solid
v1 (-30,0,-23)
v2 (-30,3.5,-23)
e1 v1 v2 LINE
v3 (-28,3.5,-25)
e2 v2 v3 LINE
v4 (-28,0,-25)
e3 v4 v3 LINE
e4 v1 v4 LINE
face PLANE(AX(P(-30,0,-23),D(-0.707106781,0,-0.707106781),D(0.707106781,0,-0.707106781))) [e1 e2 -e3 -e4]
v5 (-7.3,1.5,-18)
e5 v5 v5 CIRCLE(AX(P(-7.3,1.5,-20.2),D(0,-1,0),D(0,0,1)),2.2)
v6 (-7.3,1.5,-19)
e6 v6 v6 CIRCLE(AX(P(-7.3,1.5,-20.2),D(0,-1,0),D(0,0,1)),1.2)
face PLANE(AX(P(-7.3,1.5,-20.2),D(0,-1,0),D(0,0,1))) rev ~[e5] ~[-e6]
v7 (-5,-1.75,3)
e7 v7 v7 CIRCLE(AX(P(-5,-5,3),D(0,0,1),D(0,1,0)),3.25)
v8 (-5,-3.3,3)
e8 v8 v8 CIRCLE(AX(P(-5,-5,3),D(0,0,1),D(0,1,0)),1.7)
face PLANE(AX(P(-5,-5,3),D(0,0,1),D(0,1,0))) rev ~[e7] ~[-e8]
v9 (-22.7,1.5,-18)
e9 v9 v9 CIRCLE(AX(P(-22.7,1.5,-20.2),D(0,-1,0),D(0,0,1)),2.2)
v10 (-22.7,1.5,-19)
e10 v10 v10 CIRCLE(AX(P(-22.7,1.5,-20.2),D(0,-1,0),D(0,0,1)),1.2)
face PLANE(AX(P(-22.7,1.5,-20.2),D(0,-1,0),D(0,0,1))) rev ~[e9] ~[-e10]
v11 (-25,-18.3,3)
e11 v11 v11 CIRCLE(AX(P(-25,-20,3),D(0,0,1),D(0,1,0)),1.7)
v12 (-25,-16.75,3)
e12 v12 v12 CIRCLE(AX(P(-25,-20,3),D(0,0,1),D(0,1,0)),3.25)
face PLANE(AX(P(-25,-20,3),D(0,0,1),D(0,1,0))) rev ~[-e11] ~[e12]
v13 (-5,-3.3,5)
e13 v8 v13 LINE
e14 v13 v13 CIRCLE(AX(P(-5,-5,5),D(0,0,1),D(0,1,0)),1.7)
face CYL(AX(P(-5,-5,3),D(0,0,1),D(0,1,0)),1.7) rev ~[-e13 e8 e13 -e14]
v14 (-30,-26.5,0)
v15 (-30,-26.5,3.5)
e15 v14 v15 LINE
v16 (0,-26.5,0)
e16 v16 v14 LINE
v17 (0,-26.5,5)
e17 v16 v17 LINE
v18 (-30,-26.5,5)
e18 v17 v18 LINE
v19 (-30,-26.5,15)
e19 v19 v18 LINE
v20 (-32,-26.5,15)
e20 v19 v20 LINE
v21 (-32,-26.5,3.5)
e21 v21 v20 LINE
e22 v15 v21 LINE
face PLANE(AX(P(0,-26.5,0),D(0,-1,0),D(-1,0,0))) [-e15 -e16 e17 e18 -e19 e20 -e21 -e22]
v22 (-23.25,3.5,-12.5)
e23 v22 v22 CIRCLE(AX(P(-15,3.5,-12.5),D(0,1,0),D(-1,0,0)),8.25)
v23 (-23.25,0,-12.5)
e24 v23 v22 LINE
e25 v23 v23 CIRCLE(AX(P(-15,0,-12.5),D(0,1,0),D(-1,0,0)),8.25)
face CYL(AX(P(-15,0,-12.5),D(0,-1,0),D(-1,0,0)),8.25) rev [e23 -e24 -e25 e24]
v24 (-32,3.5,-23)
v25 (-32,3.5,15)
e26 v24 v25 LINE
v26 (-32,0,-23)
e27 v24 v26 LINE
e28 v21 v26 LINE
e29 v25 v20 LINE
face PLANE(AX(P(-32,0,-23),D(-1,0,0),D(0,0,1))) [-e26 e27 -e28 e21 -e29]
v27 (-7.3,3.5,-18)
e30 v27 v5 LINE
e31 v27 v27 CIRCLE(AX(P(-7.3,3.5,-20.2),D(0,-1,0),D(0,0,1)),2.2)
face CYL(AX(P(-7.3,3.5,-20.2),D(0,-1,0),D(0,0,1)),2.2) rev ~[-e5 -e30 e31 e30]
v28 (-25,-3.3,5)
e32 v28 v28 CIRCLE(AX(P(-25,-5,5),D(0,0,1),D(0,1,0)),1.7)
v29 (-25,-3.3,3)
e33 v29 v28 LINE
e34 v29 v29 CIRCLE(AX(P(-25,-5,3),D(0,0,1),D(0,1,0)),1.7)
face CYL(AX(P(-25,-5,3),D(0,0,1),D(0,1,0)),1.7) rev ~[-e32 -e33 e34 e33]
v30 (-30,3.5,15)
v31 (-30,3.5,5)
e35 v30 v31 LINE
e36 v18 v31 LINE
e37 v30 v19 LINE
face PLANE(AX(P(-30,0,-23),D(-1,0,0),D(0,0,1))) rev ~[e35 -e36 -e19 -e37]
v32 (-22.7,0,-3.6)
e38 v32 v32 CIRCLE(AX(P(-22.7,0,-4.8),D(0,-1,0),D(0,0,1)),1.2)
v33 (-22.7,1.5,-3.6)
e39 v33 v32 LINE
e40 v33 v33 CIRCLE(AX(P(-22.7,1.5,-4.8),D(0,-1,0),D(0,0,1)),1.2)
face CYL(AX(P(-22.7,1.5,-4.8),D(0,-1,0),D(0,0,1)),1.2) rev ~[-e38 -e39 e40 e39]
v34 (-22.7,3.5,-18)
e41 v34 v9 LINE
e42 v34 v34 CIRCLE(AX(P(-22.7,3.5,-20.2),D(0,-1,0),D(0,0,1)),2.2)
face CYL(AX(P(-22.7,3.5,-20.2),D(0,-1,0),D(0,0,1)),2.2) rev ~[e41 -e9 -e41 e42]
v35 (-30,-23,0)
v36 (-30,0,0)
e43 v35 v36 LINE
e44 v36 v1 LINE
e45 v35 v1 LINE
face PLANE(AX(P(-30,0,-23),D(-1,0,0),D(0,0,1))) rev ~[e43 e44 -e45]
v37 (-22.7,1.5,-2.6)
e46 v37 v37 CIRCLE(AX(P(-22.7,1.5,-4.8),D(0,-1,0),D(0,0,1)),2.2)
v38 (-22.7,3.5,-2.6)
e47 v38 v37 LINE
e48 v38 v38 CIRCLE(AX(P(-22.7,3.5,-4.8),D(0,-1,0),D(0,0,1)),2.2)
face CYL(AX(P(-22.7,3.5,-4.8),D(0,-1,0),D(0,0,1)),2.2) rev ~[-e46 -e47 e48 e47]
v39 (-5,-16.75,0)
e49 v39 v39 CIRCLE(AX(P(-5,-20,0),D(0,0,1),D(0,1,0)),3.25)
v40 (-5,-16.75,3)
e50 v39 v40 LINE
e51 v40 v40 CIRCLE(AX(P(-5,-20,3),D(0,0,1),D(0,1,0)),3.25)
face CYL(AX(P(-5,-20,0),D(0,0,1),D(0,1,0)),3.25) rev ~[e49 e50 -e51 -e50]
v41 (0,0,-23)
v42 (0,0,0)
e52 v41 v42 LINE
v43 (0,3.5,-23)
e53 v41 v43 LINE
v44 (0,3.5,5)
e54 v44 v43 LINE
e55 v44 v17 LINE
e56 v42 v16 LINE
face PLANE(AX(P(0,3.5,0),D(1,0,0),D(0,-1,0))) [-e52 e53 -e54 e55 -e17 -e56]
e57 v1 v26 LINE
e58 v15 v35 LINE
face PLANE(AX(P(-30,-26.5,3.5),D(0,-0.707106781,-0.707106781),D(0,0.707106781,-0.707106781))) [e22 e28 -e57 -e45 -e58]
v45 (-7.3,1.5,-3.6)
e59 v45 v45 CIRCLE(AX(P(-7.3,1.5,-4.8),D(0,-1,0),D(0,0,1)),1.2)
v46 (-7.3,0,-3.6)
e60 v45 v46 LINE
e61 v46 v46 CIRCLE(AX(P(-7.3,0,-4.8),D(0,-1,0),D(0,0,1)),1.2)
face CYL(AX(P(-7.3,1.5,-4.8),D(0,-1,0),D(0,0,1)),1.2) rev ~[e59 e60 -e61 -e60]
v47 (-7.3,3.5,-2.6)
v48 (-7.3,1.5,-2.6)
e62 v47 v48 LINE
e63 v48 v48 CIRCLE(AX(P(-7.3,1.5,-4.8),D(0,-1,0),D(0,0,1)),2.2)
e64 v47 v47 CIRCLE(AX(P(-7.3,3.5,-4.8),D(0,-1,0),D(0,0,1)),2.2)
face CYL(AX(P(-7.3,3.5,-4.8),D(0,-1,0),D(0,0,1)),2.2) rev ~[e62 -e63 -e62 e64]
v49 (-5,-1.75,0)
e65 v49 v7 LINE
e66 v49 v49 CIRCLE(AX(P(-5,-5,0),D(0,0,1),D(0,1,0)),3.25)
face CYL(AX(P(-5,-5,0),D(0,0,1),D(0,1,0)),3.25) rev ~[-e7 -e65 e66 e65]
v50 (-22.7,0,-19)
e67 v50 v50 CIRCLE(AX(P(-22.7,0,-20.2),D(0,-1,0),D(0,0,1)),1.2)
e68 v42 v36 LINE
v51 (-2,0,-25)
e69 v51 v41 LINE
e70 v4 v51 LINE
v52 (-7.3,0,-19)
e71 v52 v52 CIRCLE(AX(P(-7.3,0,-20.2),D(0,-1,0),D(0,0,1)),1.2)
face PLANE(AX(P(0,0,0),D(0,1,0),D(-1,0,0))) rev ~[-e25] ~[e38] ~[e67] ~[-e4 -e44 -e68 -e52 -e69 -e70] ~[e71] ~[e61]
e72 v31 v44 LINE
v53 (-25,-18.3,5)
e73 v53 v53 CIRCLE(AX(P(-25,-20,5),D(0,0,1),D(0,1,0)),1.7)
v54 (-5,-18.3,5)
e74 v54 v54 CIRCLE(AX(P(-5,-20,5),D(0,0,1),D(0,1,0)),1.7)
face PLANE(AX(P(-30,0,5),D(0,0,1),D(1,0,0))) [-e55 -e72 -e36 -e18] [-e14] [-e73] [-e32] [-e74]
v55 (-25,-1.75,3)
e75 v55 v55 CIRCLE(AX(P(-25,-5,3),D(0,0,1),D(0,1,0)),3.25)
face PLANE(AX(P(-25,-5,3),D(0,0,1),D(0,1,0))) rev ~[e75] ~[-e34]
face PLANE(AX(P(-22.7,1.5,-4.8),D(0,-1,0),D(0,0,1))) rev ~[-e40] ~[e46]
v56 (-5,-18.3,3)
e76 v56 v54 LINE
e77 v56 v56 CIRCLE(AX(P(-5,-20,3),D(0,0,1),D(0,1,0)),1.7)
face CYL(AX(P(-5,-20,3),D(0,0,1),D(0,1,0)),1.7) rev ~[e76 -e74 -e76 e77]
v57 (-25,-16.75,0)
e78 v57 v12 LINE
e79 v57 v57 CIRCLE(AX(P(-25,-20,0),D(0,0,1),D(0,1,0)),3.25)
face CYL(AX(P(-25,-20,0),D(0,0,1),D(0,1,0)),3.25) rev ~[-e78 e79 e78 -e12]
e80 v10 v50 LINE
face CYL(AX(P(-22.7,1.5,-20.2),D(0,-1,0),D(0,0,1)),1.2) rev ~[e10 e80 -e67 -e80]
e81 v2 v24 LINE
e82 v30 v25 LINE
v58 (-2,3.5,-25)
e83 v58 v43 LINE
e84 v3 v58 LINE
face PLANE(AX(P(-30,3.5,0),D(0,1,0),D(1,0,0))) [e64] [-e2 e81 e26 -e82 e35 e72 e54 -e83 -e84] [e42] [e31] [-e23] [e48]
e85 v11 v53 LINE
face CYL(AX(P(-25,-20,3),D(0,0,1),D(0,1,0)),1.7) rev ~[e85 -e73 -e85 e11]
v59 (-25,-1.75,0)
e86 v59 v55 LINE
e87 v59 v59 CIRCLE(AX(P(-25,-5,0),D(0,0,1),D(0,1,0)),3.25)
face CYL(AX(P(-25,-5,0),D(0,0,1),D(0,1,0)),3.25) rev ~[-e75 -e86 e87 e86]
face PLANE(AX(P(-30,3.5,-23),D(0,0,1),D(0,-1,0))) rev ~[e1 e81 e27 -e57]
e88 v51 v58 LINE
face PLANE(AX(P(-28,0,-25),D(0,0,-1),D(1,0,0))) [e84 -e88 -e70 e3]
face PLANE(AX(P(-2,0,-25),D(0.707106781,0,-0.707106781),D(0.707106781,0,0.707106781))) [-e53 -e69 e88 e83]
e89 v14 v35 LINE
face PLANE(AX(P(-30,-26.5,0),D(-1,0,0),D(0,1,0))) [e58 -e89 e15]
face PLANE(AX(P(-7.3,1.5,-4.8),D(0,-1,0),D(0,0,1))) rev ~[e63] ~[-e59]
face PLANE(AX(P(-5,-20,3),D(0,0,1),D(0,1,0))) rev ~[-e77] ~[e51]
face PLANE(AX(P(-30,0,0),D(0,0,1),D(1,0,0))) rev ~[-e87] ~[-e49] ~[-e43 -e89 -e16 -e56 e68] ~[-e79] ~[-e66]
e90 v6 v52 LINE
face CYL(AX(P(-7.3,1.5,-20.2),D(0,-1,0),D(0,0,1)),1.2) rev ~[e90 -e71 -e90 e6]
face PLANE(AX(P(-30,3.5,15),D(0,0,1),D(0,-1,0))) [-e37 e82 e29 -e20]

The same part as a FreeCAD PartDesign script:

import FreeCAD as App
import Part
import Sketcher
Q = App.Units.Quantity

doc = App.newDocument("Part")
body = doc.addObject("PartDesign::Body", "Body")

# Sketch on XZ plane
sketch1 = body.newObject("Sketcher::SketchObject", "Sketch")
sketch1.AttachmentSupport = (doc.getObject("XZ_Plane"), [""])
sketch1.MapMode = "FlatFace"
sketch1.addGeometry([
    Part.LineSegment(App.Vector(-30, 0, 0), App.Vector(0, 0, 0)),  # 0
    Part.LineSegment(App.Vector(0, 0, 0), App.Vector(0, -23, 0)),  # 1
    Part.LineSegment(App.Vector(0, -23, 0), App.Vector(-2, -25, 0)),  # 2
    Part.LineSegment(App.Vector(-2, -25, 0), App.Vector(-28, -25, 0)),  # 3
    Part.LineSegment(App.Vector(-28, -25, 0), App.Vector(-30, -23, 0)),  # 4
    Part.LineSegment(App.Vector(-30, -23, 0), App.Vector(-30, 0, 0)),  # 5
    Part.Circle(App.Vector(-15, -12.5, 0), App.Vector(0, 0, 1), 8.25),  # 6
], False)
sketch1.addConstraint([
    Sketcher.Constraint("Coincident", 0, 2, 1, 1),
    Sketcher.Constraint("Coincident", 1, 2, 2, 1),
    Sketcher.Constraint("Coincident", 2, 2, 3, 1),
    Sketcher.Constraint("Coincident", 3, 2, 4, 1),
    Sketcher.Constraint("Coincident", 4, 2, 5, 1),
    Sketcher.Constraint("Coincident", 5, 2, 0, 1),
    Sketcher.Constraint("Horizontal", 0),
    Sketcher.Constraint("Vertical", 1),
    Sketcher.Constraint("Horizontal", 3),
    Sketcher.Constraint("Vertical", 5),
    Sketcher.Constraint("Coincident", 0, 2, -1, 1),
    Sketcher.Constraint("Perpendicular", 2, 4),
    Sketcher.Constraint("Horizontal", 1, 2, 4, 2),
    Sketcher.Constraint("Equal", 2, 4),
    Sketcher.Constraint("Diameter", 6, 16.5),
    Sketcher.Constraint("DistanceX", 0, 1, 0, 2, 30.0),
    Sketcher.Constraint("DistanceX", 6, 3, -1, 1, 15.0),
    Sketcher.Constraint("DistanceX", 2, 2, -1, 1, 2.0),
    Sketcher.Constraint("DistanceY", 2, 2, -1, 1, 25.0),
    Sketcher.Constraint("DistanceY", 6, 3, -1, 1, 12.5),
])
pad1 = body.newObject("PartDesign::Pad", "Pad")
pad1.Profile = sketch1
pad1.Length = 3.5
pad1.Reversed = True

# Sketch on XZ plane
sketch2 = body.newObject("Sketcher::SketchObject", "Sketch001")
sketch2.AttachmentSupport = (doc.getObject("XZ_Plane"), [""])
sketch2.MapMode = "FlatFace"
sketch2.AttachmentOffset = App.Placement(App.Vector(0, 0, -3.5), App.Rotation())
sketch2.addGeometry([
    Part.Circle(App.Vector(-22.7, -4.8, 0), App.Vector(0, 0, 1), 1.2),
    Part.Circle(App.Vector(-22.7, -20.2, 0), App.Vector(0, 0, 1), 1.2),
    Part.Circle(App.Vector(-7.3, -20.2, 0), App.Vector(0, 0, 1), 1.2),
    Part.Circle(App.Vector(-7.3, -4.8, 0), App.Vector(0, 0, 1), 1.2),
], False)
sketch2.addConstraint([
    Sketcher.Constraint("Equal", 0, 1),
    Sketcher.Constraint("Equal", 1, 2),
    Sketcher.Constraint("Equal", 2, 3),
    Sketcher.Constraint("Horizontal", 1, 3, 2, 3),
    Sketcher.Constraint("Horizontal", 0, 3, 3, 3),
    Sketcher.Constraint("Vertical", 0, 3, 1, 3),
    Sketcher.Constraint("Vertical", 2, 3, 3, 3),
    Sketcher.Constraint("Diameter", 0, 2.4),
    Sketcher.Constraint("DistanceX", 0, 3, -1, 1, 22.7),
    Sketcher.Constraint("DistanceY", 0, 3, -1, 1, 4.8),
    Sketcher.Constraint("DistanceY", 1, 3, -1, 1, 20.2),
    Sketcher.Constraint("DistanceX", 2, 3, -1, 1, 7.3),
])
doc.recompute()
hole = body.newObject("PartDesign::Hole", "Hole")
hole.Profile = sketch2
hole.ThreadType = "None"
hole.Diameter = 2.4
hole.DepthType = "ThroughAll"
hole.HoleCutType = "Counterbore"
hole.HoleCutDiameter = 4.4
hole.HoleCutDepth = 2
hole.Reversed = True

# Sketch on XY plane
sketch3 = body.newObject("Sketcher::SketchObject", "Sketch002")
sketch3.AttachmentSupport = (doc.getObject("XY_Plane"), [""])
sketch3.MapMode = "FlatFace"
sketch3.addGeometry([
    Part.LineSegment(App.Vector(0, 3.5, 0), App.Vector(-30, 3.5, 0)),
    Part.LineSegment(App.Vector(-30, 3.5, 0), App.Vector(-30, -26.5, 0)),
    Part.LineSegment(App.Vector(-30, -26.5, 0), App.Vector(0, -26.5, 0)),
    Part.LineSegment(App.Vector(0, -26.5, 0), App.Vector(0, 3.5, 0)),
], False)
sketch3.addConstraint([
    Sketcher.Constraint("Coincident", 0, 2, 1, 1),
    Sketcher.Constraint("Coincident", 1, 2, 2, 1),
    Sketcher.Constraint("Coincident", 2, 2, 3, 1),
    Sketcher.Constraint("Coincident", 3, 2, 0, 1),
    Sketcher.Constraint("Horizontal", 0),
    Sketcher.Constraint("Vertical", 1),
    Sketcher.Constraint("Horizontal", 2),
    Sketcher.Constraint("Vertical", 3),
    Sketcher.Constraint("PointOnObject", 2, 2, -2),
    Sketcher.Constraint("Equal", 2, 1),
    Sketcher.Constraint("DistanceX", 0, 2, 0, 1, 30.0),
    Sketcher.Constraint("DistanceY", -1, 1, 0, 2, 3.5),
])
pad2 = body.newObject("PartDesign::Pad", "Pad001")
pad2.Profile = sketch3
pad2.Length = 5

# Sketch on YZ plane
sketch4 = body.newObject("Sketcher::SketchObject", "Sketch003")
sketch4.AttachmentSupport = (doc.getObject("YZ_Plane"), [""])
sketch4.MapMode = "FlatFace"
sketch4.AttachmentOffset = App.Placement(App.Vector(0, 0, -30), App.Rotation())
sketch4.addGeometry([
    Part.LineSegment(App.Vector(3.5, -23, 0), App.Vector(0, -23, 0)),  # 0
    Part.LineSegment(App.Vector(0, -23, 0), App.Vector(-26.5, 3.5, 0)),  # 1
    Part.LineSegment(App.Vector(-26.5, 3.5, 0), App.Vector(-26.5, 15, 0)),  # 2
    Part.LineSegment(App.Vector(-26.5, 15, 0), App.Vector(3.5, 15, 0)),  # 3
    Part.LineSegment(App.Vector(3.5, 15, 0), App.Vector(3.5, -23, 0)),  # 4
], False)
sketch4.addConstraint([
    Sketcher.Constraint("Coincident", 0, 2, 1, 1),
    Sketcher.Constraint("Coincident", 1, 2, 2, 1),
    Sketcher.Constraint("Coincident", 2, 2, 3, 1),
    Sketcher.Constraint("Coincident", 3, 2, 4, 1),
    Sketcher.Constraint("Coincident", 4, 2, 0, 1),
    Sketcher.Constraint("Horizontal", 0),
    Sketcher.Constraint("Vertical", 2),
    Sketcher.Constraint("Horizontal", 3),
    Sketcher.Constraint("Vertical", 4),
    Sketcher.Constraint("PointOnObject", 0, 2, -2),
    Sketcher.Constraint("DistanceX", 3, 1, 3, 2, 30.0),
    Sketcher.Constraint("DistanceY", 4, 2, 4, 1, 38.0),
    Sketcher.Constraint("Angle", 1, Q("135 deg")),
    Sketcher.Constraint("DistanceX", 0, 2, 0, 1, 3.5),
    Sketcher.Constraint("DistanceY", 0, 2, -1, 1, 23.0),
])
pad3 = body.newObject("PartDesign::Pad", "Pad002")
pad3.Profile = sketch4
pad3.Length = 2
pad3.Reversed = True

# Sketch on XY plane
sketch5 = body.newObject("Sketcher::SketchObject", "Sketch004")
sketch5.AttachmentSupport = (doc.getObject("XY_Plane"), [""])
sketch5.MapMode = "FlatFace"
sketch5.addGeometry([
    Part.Circle(App.Vector(-25, -5, 0), App.Vector(0, 0, 1), 1.7),
    Part.Circle(App.Vector(-25, -20, 0), App.Vector(0, 0, 1), 1.7),
    Part.Circle(App.Vector(-5, -20, 0), App.Vector(0, 0, 1), 1.7),
    Part.Circle(App.Vector(-5, -5, 0), App.Vector(0, 0, 1), 1.7),
], False)
sketch5.addConstraint([
    Sketcher.Constraint("Equal", 0, 1),
    Sketcher.Constraint("Equal", 1, 2),
    Sketcher.Constraint("Equal", 2, 3),
    Sketcher.Constraint("Horizontal", 1, 3, 2, 3),
    Sketcher.Constraint("Horizontal", 0, 3, 3, 3),
    Sketcher.Constraint("Vertical", 0, 3, 1, 3),
    Sketcher.Constraint("Vertical", 2, 3, 3, 3),
    Sketcher.Constraint("Diameter", 0, 3.4),
    Sketcher.Constraint("DistanceX", 0, 3, -1, 1, 25.0),
    Sketcher.Constraint("DistanceY", 0, 3, -1, 1, 5.0),
    Sketcher.Constraint("DistanceY", 1, 3, -1, 1, 20.0),
    Sketcher.Constraint("DistanceX", 2, 3, -1, 1, 5.0),
])
doc.recompute()
hole2 = body.newObject("PartDesign::Hole", "Hole001")
hole2.Profile = sketch5
hole2.ThreadType = "None"
hole2.Diameter = 3.4
hole2.DepthType = "ThroughAll"
hole2.HoleCutType = "Counterbore"
hole2.HoleCutDiameter = 6.5
hole2.HoleCutDepth = 3
hole2.Reversed = True

doc.recompute()
